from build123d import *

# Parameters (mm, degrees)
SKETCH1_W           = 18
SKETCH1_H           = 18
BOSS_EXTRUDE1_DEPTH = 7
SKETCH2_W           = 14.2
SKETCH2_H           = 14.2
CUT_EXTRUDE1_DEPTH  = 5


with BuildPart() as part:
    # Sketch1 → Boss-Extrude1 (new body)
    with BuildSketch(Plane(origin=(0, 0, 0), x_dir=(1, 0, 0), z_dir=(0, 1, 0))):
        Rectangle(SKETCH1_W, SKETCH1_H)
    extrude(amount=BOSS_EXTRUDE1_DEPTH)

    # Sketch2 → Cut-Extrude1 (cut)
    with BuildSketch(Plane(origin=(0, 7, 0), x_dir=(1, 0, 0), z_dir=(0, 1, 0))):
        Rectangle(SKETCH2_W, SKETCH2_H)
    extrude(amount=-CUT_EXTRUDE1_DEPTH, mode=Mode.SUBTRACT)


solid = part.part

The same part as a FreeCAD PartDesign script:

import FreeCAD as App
import Part
import Sketcher
Q = App.Units.Quantity

doc = App.newDocument("Part")
body = doc.addObject("PartDesign::Body", "Body")

# Sketch on XZ plane
sketch1 = body.newObject("Sketcher::SketchObject", "Sketch")
sketch1.AttachmentSupport = (doc.getObject("XZ_Plane"), [""])
sketch1.MapMode = "FlatFace"
sketch1.addGeometry([
    Part.LineSegment(App.Vector(-9, -9, 0), App.Vector(-9, 9, 0)),
    Part.LineSegment(App.Vector(-9, 9, 0), App.Vector(9, 9, 0)),
    Part.LineSegment(App.Vector(9, 9, 0), App.Vector(9, -9, 0)),
    Part.LineSegment(App.Vector(9, -9, 0), App.Vector(-9, -9, 0)),
], False)
sketch1.addConstraint([
    Sketcher.Constraint("Coincident", 0, 2, 1, 1),
    Sketcher.Constraint("Coincident", 1, 2, 2, 1),
    Sketcher.Constraint("Coincident", 2, 2, 3, 1),
    Sketcher.Constraint("Coincident", 3, 2, 0, 1),
    Sketcher.Constraint("Vertical", 0),
    Sketcher.Constraint("Horizontal", 1),
    Sketcher.Constraint("Vertical", 2),
    Sketcher.Constraint("Horizontal", 3),
    Sketcher.Constraint("Symmetric", 0, 2, 2, 2, -1, 1),
    Sketcher.Constraint("Equal", 3, 0),
    Sketcher.Constraint("DistanceX", 1, 1, 1, 2, Q("18 mm")),
])
pad1 = body.newObject("PartDesign::Pad", "Pad")
pad1.Profile = sketch1
pad1.Length = 7
pad1.Reversed = True

# Sketch on XZ plane
sketch2 = body.newObject("Sketcher::SketchObject", "Sketch001")
sketch2.AttachmentSupport = (doc.getObject("XZ_Plane"), [""])
sketch2.MapMode = "FlatFace"
sketch2.AttachmentOffset = App.Placement(App.Vector(0, 0, -7), App.Rotation())
sketch2.addGeometry([
    Part.LineSegment(App.Vector(-7.1, -7.1, 0), App.Vector(-7.1, 7.1, 0)),
    Part.LineSegment(App.Vector(-7.1, 7.1, 0), App.Vector(7.1, 7.1, 0)),
    Part.LineSegment(App.Vector(7.1, 7.1, 0), App.Vector(7.1, -7.1, 0)),
    Part.LineSegment(App.Vector(7.1, -7.1, 0), App.Vector(-7.1, -7.1, 0)),
], False)
sketch2.addConstraint([
    Sketcher.Constraint("Coincident", 0, 2, 1, 1),
    Sketcher.Constraint("Coincident", 1, 2, 2, 1),
    Sketcher.Constraint("Coincident", 2, 2, 3, 1),
    Sketcher.Constraint("Coincident", 3, 2, 0, 1),
    Sketcher.Constraint("Vertical", 0),
    Sketcher.Constraint("Horizontal", 1),
    Sketcher.Constraint("Vertical", 2),
    Sketcher.Constraint("Horizontal", 3),
    Sketcher.Constraint("Symmetric", 0, 2, 2, 2, -1, 1),
    Sketcher.Constraint("Equal", 3, 0),
    Sketcher.Constraint("DistanceX", 1, 1, 1, 2, Q("14.2 mm")),
])
pocket1 = body.newObject("PartDesign::Pocket", "Pocket")
pocket1.Profile = sketch2
pocket1.Length = 5
pocket1.Reversed = True

doc.recompute()
